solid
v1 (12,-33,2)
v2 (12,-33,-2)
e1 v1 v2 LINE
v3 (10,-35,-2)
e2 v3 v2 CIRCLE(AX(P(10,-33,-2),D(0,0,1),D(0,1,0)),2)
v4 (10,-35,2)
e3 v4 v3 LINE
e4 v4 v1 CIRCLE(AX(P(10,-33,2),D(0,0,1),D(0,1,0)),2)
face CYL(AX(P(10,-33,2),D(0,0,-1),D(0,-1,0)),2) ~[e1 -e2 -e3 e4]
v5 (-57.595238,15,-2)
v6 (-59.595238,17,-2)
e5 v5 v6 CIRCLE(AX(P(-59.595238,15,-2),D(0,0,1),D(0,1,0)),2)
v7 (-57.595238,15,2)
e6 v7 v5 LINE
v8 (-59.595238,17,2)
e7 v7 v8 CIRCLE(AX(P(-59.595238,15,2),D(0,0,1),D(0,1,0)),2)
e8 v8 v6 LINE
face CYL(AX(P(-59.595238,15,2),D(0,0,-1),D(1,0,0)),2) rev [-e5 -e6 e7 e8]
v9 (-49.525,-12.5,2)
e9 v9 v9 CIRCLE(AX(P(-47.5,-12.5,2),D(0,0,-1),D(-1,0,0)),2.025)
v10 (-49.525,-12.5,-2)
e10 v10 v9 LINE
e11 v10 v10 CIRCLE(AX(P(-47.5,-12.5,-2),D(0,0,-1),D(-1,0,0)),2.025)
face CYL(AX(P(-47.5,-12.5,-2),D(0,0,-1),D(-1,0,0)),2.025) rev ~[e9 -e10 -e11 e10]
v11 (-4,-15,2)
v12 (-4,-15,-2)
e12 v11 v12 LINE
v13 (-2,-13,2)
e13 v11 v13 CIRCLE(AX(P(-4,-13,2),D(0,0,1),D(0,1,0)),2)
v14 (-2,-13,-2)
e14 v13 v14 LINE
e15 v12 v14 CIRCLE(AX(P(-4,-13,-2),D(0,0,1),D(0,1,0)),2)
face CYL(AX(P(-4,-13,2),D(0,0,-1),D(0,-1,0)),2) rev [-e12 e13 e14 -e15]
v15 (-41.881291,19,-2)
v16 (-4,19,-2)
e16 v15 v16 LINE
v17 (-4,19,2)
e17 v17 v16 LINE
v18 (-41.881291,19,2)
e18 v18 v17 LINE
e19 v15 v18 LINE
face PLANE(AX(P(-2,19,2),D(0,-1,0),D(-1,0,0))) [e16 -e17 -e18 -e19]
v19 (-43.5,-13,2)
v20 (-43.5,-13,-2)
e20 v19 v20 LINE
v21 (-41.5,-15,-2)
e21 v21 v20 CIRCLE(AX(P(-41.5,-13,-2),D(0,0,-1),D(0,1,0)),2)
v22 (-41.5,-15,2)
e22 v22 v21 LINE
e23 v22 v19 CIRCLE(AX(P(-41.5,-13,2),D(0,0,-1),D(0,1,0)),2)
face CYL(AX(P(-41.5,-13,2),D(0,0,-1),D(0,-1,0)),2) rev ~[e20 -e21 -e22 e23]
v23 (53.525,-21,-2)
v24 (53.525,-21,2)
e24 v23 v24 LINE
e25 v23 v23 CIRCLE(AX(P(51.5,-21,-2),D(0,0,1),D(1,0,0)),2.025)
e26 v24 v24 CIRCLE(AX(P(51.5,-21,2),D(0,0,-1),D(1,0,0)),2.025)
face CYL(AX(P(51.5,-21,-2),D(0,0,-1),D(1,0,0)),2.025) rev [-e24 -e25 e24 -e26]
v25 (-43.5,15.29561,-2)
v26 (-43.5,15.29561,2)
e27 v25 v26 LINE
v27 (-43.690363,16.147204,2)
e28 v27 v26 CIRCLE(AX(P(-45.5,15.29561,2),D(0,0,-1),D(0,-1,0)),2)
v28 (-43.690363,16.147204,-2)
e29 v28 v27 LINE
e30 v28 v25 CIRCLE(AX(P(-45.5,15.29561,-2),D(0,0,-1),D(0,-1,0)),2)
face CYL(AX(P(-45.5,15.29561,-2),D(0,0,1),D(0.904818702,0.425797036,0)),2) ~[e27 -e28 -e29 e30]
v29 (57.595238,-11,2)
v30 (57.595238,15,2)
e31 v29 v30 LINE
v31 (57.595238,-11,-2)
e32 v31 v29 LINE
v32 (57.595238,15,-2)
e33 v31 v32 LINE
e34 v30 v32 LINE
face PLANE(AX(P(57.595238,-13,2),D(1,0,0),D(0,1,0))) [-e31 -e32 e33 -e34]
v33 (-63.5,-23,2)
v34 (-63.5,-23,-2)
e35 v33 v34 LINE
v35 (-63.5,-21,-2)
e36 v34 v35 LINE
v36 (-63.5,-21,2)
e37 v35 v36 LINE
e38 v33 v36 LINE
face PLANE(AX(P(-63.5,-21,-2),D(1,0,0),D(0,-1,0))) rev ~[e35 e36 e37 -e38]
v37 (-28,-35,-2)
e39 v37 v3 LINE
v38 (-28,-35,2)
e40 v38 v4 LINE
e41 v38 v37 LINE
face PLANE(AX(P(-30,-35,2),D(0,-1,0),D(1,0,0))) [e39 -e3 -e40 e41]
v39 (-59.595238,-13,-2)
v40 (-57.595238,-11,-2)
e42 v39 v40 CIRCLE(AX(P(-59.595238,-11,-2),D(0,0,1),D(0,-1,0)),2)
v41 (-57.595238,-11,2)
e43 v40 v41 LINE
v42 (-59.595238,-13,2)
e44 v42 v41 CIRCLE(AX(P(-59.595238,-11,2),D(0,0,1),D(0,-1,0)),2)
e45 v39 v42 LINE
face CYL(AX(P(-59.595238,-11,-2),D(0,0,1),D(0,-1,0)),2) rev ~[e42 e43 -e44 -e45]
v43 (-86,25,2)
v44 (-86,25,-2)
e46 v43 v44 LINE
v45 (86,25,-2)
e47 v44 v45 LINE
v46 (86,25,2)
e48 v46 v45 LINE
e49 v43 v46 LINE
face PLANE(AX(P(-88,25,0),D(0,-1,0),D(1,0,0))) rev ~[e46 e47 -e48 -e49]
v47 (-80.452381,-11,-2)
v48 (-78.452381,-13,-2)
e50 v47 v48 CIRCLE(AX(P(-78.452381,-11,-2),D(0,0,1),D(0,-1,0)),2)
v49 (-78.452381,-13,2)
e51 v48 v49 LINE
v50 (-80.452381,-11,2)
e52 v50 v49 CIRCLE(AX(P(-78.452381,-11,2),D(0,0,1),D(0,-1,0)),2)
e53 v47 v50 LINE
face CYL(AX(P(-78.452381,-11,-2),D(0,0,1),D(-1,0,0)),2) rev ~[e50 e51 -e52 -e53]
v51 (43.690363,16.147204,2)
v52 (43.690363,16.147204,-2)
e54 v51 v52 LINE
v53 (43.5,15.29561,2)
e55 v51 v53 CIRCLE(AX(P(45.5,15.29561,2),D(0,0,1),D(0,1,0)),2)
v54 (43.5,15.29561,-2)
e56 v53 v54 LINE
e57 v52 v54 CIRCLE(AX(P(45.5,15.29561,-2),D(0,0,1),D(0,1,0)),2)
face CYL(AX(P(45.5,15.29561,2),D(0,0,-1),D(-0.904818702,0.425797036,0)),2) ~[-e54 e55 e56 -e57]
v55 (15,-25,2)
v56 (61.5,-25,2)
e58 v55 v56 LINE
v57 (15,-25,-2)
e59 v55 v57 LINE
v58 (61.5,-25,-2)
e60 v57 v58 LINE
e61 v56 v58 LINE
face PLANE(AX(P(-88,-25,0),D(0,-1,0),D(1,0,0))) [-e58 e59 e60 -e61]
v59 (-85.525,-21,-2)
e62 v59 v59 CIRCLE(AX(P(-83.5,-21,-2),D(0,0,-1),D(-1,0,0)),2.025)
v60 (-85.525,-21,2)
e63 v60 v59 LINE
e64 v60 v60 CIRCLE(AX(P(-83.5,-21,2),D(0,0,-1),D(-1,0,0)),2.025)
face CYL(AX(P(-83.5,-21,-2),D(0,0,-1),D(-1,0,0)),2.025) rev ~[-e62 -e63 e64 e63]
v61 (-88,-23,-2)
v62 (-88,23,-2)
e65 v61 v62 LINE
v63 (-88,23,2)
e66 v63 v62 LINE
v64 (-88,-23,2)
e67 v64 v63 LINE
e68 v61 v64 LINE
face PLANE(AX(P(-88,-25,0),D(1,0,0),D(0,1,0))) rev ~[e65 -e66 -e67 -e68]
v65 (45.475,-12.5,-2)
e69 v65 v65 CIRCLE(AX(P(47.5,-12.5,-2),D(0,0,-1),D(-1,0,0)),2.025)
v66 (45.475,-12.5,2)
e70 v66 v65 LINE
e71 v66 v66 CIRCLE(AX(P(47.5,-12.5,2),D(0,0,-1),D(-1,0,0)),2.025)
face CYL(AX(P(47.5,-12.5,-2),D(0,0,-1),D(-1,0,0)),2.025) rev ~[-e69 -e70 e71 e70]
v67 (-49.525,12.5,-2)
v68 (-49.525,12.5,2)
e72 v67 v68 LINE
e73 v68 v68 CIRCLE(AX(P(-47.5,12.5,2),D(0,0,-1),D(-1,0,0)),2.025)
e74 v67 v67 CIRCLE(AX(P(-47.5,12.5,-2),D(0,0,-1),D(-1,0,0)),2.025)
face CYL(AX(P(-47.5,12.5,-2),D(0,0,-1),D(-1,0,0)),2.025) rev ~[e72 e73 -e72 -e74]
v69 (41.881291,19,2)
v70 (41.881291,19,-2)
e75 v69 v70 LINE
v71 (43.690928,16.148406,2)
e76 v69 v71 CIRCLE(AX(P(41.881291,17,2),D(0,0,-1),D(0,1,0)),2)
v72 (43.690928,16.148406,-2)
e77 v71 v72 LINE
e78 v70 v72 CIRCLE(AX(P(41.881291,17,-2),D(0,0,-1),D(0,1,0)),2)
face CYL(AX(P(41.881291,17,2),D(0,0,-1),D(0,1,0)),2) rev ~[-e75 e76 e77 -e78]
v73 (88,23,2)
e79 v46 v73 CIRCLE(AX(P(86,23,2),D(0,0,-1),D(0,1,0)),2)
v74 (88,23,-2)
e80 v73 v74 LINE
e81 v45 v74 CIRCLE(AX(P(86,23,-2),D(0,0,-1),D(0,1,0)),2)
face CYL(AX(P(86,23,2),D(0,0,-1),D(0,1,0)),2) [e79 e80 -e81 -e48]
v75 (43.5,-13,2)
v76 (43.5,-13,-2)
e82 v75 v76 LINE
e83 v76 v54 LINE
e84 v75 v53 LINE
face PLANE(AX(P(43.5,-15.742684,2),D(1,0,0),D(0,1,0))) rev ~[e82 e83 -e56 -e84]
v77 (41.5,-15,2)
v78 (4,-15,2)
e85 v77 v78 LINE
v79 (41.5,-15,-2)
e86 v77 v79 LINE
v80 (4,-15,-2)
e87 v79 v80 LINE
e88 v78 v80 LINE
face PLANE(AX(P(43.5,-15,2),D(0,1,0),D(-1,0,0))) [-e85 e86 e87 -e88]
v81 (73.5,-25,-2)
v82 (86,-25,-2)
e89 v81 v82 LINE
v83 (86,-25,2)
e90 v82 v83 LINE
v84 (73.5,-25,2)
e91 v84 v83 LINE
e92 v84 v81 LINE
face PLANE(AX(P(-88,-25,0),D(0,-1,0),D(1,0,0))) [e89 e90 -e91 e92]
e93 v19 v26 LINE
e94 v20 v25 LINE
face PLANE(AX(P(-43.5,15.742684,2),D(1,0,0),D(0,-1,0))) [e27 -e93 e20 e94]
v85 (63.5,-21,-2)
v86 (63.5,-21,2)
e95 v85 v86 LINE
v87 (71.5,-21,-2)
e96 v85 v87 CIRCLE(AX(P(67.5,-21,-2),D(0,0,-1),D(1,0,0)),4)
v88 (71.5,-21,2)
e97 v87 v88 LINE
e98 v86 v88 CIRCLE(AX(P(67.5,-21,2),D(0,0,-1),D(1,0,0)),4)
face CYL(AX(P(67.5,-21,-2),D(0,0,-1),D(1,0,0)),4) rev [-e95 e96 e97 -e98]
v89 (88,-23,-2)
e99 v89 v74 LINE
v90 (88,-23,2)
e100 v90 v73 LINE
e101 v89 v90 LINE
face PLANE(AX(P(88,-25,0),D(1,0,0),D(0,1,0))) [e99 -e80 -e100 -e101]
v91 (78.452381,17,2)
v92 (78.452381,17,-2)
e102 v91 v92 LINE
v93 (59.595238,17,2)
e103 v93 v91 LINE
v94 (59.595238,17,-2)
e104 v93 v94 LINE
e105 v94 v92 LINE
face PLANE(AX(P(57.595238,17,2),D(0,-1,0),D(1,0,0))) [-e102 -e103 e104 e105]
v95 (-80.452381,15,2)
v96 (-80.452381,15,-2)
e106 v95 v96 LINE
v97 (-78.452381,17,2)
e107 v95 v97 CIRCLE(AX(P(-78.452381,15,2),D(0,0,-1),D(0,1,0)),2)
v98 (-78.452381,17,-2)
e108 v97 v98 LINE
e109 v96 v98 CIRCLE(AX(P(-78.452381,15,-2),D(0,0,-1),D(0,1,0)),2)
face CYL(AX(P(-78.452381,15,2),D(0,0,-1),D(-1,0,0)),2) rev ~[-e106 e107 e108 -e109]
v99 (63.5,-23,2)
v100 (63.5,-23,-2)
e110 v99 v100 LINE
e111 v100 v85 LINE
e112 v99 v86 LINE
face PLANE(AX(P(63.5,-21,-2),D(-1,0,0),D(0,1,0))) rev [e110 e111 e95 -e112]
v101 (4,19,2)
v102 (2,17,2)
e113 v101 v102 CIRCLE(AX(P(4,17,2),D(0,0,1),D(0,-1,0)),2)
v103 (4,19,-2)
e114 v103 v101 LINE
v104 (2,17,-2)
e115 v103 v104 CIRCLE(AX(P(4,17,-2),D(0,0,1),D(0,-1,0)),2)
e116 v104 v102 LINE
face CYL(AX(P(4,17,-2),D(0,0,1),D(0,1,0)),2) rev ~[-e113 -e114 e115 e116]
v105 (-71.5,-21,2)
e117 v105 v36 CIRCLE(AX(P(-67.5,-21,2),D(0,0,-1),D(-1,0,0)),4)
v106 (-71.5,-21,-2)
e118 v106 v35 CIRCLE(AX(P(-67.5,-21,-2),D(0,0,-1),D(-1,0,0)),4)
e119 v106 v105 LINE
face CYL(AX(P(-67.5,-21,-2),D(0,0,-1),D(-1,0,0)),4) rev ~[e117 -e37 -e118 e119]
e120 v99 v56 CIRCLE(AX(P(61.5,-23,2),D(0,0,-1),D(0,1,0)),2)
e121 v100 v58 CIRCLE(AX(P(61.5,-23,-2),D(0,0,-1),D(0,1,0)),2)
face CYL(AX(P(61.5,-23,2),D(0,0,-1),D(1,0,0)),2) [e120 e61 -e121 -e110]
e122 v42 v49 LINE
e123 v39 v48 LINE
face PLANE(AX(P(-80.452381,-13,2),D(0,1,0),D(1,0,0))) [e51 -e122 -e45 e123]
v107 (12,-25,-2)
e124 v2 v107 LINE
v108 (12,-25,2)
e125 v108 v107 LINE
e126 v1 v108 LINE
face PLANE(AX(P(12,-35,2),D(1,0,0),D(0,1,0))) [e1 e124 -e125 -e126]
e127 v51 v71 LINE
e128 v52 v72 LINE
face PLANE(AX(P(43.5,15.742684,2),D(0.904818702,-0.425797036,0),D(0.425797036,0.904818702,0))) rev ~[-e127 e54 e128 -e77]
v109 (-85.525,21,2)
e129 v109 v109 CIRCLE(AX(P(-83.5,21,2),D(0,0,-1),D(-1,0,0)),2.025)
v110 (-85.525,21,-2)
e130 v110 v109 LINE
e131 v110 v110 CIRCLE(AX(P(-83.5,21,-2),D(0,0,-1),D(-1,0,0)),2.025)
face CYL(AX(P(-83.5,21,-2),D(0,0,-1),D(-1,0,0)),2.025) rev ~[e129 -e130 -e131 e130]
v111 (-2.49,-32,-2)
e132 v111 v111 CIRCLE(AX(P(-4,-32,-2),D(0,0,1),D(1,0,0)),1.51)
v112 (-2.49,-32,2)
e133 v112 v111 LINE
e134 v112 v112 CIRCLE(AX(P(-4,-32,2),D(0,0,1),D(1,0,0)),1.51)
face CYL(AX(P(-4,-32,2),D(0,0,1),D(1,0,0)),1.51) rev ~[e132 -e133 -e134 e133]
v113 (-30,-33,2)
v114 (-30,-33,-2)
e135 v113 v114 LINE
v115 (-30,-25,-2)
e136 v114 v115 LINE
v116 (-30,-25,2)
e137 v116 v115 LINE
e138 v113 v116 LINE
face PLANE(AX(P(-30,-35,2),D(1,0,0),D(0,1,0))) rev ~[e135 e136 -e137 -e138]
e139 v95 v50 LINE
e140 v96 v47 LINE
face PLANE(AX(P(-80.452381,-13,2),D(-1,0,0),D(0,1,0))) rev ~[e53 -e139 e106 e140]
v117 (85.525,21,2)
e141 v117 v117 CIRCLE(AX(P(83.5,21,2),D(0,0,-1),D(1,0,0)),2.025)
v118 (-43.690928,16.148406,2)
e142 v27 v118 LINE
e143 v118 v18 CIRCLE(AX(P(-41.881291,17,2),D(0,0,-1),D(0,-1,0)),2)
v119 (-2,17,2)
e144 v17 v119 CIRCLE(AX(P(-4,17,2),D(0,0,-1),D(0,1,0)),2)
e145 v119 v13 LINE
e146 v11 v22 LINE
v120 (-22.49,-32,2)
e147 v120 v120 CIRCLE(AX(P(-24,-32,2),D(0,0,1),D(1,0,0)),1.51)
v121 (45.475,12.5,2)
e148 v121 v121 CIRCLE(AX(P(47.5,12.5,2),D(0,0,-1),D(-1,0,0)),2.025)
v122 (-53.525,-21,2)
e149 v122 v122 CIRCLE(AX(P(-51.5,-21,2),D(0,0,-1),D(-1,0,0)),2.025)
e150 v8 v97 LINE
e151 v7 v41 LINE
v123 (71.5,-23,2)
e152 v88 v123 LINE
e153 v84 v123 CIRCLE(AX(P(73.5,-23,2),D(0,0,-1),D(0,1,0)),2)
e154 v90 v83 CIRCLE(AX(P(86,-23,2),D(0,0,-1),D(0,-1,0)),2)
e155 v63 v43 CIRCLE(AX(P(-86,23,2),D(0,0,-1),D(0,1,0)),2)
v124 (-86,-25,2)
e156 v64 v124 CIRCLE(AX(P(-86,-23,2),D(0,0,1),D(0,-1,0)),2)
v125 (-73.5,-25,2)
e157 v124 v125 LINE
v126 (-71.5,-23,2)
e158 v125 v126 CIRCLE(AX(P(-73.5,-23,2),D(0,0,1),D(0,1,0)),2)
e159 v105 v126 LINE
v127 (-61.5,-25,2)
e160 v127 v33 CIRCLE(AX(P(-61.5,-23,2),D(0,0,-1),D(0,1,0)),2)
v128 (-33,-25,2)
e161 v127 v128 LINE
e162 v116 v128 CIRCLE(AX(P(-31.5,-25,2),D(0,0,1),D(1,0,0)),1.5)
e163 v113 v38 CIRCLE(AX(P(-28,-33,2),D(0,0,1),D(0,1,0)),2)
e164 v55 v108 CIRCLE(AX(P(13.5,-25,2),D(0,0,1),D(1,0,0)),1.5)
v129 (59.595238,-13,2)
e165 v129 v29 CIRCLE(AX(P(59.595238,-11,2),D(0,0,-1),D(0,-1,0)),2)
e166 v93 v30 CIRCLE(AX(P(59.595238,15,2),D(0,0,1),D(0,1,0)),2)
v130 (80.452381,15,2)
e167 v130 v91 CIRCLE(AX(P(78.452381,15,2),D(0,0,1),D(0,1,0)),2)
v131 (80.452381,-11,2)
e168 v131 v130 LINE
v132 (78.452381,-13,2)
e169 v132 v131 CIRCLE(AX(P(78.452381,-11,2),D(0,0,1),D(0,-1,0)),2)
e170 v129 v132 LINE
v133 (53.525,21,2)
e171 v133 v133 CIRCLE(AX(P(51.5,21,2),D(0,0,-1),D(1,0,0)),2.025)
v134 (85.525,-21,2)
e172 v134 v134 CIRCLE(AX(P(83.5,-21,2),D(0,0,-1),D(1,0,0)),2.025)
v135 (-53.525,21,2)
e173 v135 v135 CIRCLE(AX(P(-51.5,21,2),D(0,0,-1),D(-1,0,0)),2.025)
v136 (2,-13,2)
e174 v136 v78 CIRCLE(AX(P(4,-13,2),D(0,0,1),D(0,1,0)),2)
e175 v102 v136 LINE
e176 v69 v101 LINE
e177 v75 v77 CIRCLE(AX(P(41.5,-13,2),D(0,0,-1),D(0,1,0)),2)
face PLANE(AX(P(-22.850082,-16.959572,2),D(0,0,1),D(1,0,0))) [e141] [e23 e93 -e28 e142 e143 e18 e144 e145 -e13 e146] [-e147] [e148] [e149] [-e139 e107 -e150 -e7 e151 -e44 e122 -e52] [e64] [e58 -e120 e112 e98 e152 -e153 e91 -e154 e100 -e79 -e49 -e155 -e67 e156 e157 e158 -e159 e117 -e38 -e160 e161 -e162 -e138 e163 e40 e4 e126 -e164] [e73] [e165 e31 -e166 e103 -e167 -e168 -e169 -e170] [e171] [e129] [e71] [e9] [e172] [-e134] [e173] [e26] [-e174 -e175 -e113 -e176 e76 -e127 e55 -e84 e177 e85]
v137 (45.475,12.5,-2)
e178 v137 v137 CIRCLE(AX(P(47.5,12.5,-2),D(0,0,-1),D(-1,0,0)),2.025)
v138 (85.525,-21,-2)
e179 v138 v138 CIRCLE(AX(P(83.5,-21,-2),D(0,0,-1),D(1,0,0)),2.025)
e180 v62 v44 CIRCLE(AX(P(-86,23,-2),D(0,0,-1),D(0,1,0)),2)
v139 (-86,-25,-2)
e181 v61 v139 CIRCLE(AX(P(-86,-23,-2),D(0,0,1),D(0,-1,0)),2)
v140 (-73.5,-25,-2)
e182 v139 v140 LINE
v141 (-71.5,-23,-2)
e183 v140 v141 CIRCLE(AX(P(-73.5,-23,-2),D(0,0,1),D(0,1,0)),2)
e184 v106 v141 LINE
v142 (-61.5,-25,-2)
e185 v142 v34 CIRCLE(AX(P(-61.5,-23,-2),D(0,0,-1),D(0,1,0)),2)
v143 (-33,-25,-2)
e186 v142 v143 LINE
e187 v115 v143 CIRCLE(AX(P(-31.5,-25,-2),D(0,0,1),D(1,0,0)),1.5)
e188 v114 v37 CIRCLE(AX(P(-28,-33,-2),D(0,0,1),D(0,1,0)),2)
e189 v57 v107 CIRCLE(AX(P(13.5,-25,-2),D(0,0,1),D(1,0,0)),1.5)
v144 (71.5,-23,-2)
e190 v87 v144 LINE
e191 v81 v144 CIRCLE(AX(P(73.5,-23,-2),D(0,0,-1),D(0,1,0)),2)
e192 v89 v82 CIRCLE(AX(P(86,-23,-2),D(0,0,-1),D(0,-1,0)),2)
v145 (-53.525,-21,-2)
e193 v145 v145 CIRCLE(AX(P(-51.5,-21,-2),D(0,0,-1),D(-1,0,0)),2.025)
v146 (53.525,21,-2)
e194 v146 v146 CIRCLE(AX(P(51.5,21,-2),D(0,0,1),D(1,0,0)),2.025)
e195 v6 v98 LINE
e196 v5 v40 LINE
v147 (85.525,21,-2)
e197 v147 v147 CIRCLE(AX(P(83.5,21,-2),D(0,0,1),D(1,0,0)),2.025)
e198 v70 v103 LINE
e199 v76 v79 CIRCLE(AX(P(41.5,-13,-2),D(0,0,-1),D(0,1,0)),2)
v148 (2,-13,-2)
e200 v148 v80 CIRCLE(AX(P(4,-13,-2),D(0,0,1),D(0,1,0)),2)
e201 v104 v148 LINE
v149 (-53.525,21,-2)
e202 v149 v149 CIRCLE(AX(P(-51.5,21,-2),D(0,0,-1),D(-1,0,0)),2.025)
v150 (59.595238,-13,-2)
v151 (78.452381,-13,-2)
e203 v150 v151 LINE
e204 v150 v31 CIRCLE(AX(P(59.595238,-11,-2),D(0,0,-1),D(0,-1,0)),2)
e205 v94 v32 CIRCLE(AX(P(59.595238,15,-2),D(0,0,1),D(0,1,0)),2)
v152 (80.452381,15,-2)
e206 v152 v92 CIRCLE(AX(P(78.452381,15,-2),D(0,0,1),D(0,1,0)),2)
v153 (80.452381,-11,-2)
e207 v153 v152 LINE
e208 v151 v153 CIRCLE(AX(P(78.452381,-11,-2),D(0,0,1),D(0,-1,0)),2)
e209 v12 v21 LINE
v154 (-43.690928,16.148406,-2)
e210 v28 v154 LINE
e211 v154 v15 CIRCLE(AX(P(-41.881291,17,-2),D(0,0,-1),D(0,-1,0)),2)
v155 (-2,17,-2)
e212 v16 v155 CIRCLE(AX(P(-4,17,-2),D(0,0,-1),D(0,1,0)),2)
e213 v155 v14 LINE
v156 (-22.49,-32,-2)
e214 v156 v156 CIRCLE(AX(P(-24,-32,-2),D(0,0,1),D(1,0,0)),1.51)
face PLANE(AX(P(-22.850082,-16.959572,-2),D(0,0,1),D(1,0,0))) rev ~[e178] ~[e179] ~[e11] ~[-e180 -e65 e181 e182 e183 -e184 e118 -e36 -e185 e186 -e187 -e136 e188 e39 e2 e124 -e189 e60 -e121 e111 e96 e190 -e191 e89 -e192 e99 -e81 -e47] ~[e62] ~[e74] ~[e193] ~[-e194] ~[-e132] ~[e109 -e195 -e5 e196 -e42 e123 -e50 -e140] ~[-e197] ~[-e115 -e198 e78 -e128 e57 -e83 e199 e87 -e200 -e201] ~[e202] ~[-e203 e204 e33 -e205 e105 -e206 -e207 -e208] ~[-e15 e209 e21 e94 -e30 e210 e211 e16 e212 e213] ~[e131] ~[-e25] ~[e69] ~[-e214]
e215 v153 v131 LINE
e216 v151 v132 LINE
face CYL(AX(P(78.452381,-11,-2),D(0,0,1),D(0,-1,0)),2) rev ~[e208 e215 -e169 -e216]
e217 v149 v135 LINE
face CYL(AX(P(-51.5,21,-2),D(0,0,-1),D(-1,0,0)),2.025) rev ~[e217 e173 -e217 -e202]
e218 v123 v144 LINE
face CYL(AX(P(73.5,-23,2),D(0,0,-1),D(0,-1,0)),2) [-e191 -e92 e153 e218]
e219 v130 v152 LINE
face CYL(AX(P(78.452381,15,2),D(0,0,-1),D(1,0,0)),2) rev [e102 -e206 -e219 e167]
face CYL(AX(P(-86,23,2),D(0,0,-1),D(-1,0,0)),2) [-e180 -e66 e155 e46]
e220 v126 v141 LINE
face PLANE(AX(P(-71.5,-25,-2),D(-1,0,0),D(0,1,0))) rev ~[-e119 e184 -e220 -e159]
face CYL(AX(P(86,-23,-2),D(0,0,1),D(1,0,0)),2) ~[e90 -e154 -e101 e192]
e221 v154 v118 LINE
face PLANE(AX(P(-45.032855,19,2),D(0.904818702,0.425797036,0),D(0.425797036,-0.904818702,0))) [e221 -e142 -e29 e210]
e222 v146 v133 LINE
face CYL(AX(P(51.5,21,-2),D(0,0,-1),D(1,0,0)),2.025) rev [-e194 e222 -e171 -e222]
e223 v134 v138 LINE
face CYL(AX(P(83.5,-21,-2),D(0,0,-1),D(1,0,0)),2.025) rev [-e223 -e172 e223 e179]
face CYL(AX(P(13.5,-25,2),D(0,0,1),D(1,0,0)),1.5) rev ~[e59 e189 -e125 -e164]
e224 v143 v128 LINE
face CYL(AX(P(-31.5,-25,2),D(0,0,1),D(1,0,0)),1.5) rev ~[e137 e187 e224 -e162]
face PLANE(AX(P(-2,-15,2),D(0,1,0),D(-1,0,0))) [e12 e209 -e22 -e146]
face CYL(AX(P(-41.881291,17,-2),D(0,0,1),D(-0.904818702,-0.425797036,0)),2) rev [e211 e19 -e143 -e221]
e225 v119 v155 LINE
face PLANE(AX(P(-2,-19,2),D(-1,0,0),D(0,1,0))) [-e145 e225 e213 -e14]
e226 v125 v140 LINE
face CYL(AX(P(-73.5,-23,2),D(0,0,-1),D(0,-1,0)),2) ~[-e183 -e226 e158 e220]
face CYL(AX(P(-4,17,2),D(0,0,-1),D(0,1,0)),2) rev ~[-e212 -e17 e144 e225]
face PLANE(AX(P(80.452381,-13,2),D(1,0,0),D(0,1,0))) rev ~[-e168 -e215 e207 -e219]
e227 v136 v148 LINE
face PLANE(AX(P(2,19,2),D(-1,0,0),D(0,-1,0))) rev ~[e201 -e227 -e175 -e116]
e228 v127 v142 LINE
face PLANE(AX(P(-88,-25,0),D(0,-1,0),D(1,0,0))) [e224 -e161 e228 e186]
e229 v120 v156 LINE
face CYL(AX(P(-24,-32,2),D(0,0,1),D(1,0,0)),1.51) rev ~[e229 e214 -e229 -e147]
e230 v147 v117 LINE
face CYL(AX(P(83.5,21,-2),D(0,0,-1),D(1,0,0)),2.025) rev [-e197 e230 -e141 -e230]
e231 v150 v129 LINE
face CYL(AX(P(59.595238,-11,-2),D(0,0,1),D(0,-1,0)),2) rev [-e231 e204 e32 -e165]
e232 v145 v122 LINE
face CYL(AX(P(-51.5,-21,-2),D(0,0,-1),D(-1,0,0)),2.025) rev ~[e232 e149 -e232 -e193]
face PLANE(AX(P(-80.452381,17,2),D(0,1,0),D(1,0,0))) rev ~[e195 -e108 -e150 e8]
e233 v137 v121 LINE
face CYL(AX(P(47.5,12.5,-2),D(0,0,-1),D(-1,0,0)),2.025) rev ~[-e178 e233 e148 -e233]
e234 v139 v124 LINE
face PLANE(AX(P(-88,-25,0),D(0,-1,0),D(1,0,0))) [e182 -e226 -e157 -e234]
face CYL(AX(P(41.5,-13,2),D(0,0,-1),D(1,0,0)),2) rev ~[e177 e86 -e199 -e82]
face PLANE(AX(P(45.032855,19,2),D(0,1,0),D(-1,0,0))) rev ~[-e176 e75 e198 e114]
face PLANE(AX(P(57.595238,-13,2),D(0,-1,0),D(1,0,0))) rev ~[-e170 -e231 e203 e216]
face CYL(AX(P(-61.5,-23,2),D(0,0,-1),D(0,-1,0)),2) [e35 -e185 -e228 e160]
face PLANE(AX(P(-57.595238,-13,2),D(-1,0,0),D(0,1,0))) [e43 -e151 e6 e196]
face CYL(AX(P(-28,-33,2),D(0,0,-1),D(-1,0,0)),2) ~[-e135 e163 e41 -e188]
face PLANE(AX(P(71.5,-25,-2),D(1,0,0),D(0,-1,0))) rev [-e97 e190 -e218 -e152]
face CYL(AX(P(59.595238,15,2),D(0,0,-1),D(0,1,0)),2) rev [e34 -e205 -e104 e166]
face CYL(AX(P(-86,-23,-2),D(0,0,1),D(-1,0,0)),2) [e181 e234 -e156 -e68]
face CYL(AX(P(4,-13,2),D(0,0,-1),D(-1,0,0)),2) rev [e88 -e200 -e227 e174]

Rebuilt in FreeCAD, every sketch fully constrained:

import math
import FreeCAD as App
import Part
import Sketcher


def edges_at(feature, points):
    """Names of the edges that pass closest to the given points."""
    edges = feature.Shape.Edges
    near = lambda p: min(range(len(edges)), key=lambda i: edges[i].distToShape(Part.Vertex(*p))[0])
    return sorted({f"Edge{near(p) + 1}" for p in points})

doc = App.newDocument("Part")
params = doc.addObject("Spreadsheet::Sheet", "Params")
for row, (alias, value) in enumerate([
    ("sketch1_width", "176 mm"),
    ("sketch1_height", "50 mm"),
    ("pad1_length", "4 mm"),
    ("sketch2_diameter", "4.05 mm"),
    ("pocket1_length", "44 mm"),
    ("sketch3_radius", "4 mm"),
    ("sketch3_height", "4 mm"),
    ("pocket2_length", "34 mm"),
    ("fillet_radius", "2 mm"),
    ("sketch4_diameter", "4.05 mm"),
    ("pocket3_length", "10 mm"),
    ("sketch5_height", "38 mm"),
    ("pocket4_length", "31 mm"),
    ("sketch6_height", "30 mm"),
    ("pocket5_length", "31 mm"),
    ("fillet2_radius", "2 mm"),
    ("sketch7_width", "42 mm"),
    ("sketch7_height", "10 mm"),
    ("pad2_length", "4 mm"),
    ("sketch8_diameter", "3.02 mm"),
    ("pocket6_length", "4 mm"),
    ("sketch9_diameter", "3 mm"),
    ("pocket7_length", "10 mm"),
    ("sketch10_radius", "2 mm"),
    ("sketch10_height", "2 mm"),
    ("sketch10_width", "41.5 mm"),
    ("pad3_length", "4 mm"),
    ("fillet3_radius", "2 mm"),
    ("fillet4_radius", "2 mm"),
], start=1):
    params.set(f"A{row}", alias)
    params.set(f"B{row}", "=" + value)
    params.setAlias(f"B{row}", alias)

body = doc.addObject("PartDesign::Body", "Body")

# Sketch on XY plane
sketch1 = body.newObject("Sketcher::SketchObject", "Sketch")
sketch1.AttachmentSupport = (doc.getObject("XY_Plane"), [""])
sketch1.MapMode = "FlatFace"
sketch1.addGeometry([
    Part.LineSegment(App.Vector(-88, 25, 0), App.Vector(-88, -25, 0)),
    Part.LineSegment(App.Vector(-88, -25, 0), App.Vector(88, -25, 0)),
    Part.LineSegment(App.Vector(88, -25, 0), App.Vector(88, 25, 0)),
    Part.LineSegment(App.Vector(88, 25, 0), App.Vector(-88, 25, 0)),
], False)
sketch1.addConstraint([
    Sketcher.Constraint("Coincident", 0, 2, 1, 1),
    Sketcher.Constraint("Coincident", 1, 2, 2, 1),
    Sketcher.Constraint("Coincident", 2, 2, 3, 1),
    Sketcher.Constraint("Coincident", 3, 2, 0, 1),
    Sketcher.Constraint("Vertical", 0),
    Sketcher.Constraint("Horizontal", 1),
    Sketcher.Constraint("Vertical", 2),
    Sketcher.Constraint("Horizontal", 3),
    Sketcher.Constraint("Symmetric", 0, 2, 2, 2, -1, 1),
    Sketcher.Constraint("DistanceX", 1, 1, 1, 2, 176.0),
    Sketcher.Constraint("DistanceY", 0, 2, 0, 1, 50.0),
])
sketch1.setExpression("Constraints[9]", "Params.sketch1_width")
sketch1.setExpression("Constraints[10]", "Params.sketch1_height")
pad1 = body.newObject("PartDesign::Pad", "Pad")
pad1.Profile = sketch1
pad1.setExpression("Length", "Params.pad1_length")
pad1.Midplane = True

# Sketch on XY plane
sketch2 = body.newObject("Sketcher::SketchObject", "Sketch001")
sketch2.AttachmentSupport = (doc.getObject("XY_Plane"), [""])
sketch2.MapMode = "FlatFace"
sketch2.AttachmentOffset = App.Placement(App.Vector(0, 0, -2), App.Rotation())
sketch2.addGeometry([
    Part.Circle(App.Vector(-51.5, 21, 0), App.Vector(0, 0, 1), 2.025),
    Part.Circle(App.Vector(-51.5, -21, 0), App.Vector(0, 0, 1), 2.025),
    Part.Circle(App.Vector(-83.5, 21, 0), App.Vector(0, 0, 1), 2.025),
    Part.Circle(App.Vector(-83.5, -21, 0), App.Vector(0, 0, 1), 2.025),
], False)
sketch2.addConstraint([
    Sketcher.Constraint("Equal", 0, 1),
    Sketcher.Constraint("Equal", 1, 2),
    Sketcher.Constraint("Equal", 2, 3),
    Sketcher.Constraint("Symmetric", 0, 3, 1, 3, -1),
    Sketcher.Constraint("Symmetric", 2, 3, 3, 3, -1),
    Sketcher.Constraint("Horizontal", 0, 3, 2, 3),
    Sketcher.Constraint("Diameter", 0, 4.05),
    Sketcher.Constraint("DistanceY", -1, 1, 0, 3, 21.0),
    Sketcher.Constraint("DistanceX", 2, 3, 0, 3, 32.0),
    Sketcher.Constraint("DistanceX", 0, 3, -1, 1, 51.5),
])
sketch2.setExpression("Constraints[6]", "Params.sketch2_diameter")
pocket1 = body.newObject("PartDesign::Pocket", "Pocket")
pocket1.Profile = sketch2
pocket1.setExpression("Length", "Params.pocket1_length")
pocket1.Midplane = True
doc.recompute()

mirrored = body.newObject("PartDesign::Mirrored", "Mirrored")
mirrored.Originals = [pocket1]
mirrored.MirrorPlane = (doc.getObject("YZ_Plane"), [""])
body.Tip = mirrored

# Sketch on XY plane
sketch3 = body.newObject("Sketcher::SketchObject", "Sketch002")
sketch3.AttachmentSupport = (doc.getObject("XY_Plane"), [""])
sketch3.MapMode = "FlatFace"
sketch3.AttachmentOffset = App.Placement(App.Vector(0, 0, -2), App.Rotation())
sketch3.addGeometry([
    Part.LineSegment(App.Vector(-63.5, -21, 0), App.Vector(-63.5, -25, 0)),
    Part.LineSegment(App.Vector(-63.5, -25, 0), App.Vector(-71.5, -25, 0)),
    Part.LineSegment(App.Vector(-71.5, -25, 0), App.Vector(-71.5, -21, 0)),
    Part.ArcOfCircle(Part.Circle(App.Vector(-67.5, -21, 0), App.Vector(0, 0, 1), 4), math.radians(0), math.radians(180)),
], False)
sketch3.addConstraint([
    Sketcher.Constraint("Coincident", 0, 2, 1, 1),
    Sketcher.Constraint("Coincident", 1, 2, 2, 1),
    Sketcher.Constraint("Tangent", 2, 2, 3, 2),
    Sketcher.Constraint("Tangent", 3, 1, 0, 1),
    Sketcher.Constraint("Vertical", 0),
    Sketcher.Constraint("Horizontal", 1),
    Sketcher.Constraint("Vertical", 2),
    Sketcher.Constraint("Radius", 3, 4.0),
    Sketcher.Constraint("DistanceY", 0, 2, 0, 1, 4.0),
    Sketcher.Constraint("DistanceY", 3, 3, -1, 1, 21.0),
    Sketcher.Constraint("DistanceX", 3, 3, -1, 1, 67.5),
])
sketch3.setExpression("Constraints[7]", "Params.sketch3_radius")
sketch3.setExpression("Constraints[8]", "Params.sketch3_height")
pocket2 = body.newObject("PartDesign::Pocket", "Pocket001")
pocket2.Profile = sketch3
pocket2.setExpression("Length", "Params.pocket2_length")
pocket2.Midplane = True
doc.recompute()

mirrored2 = body.newObject("PartDesign::Mirrored", "Mirrored001")
mirrored2.Originals = [pocket2]
mirrored2.MirrorPlane = (doc.getObject("YZ_Plane"), [""])
body.Tip = mirrored2
doc.recompute()

fillet = body.newObject("PartDesign::Fillet", "Fillet")
fillet.Base = (mirrored2, edges_at(mirrored2, [
    (-71.5, -25, 0),
    (-63.5, -25, 0),
    (88, -25, 0),
    (-88, -25, 0),
    (-88, 25, 0),
    (88, 25, 0),
    (63.5, -25, 0),
    (71.5, -25, 0),
]))
fillet.setExpression("Radius", "Params.fillet_radius")

# Sketch on XY plane
sketch4 = body.newObject("Sketcher::SketchObject", "Sketch003")
sketch4.AttachmentSupport = (doc.getObject("XY_Plane"), [""])
sketch4.MapMode = "FlatFace"
sketch4.AttachmentOffset = App.Placement(App.Vector(0, 0, -2), App.Rotation())
sketch4.addGeometry([
    Part.Circle(App.Vector(-47.5, -12.5, 0), App.Vector(0, 0, 1), 2.025),
    Part.Circle(App.Vector(-47.5, 12.5, 0), App.Vector(0, 0, 1), 2.025),
    Part.Circle(App.Vector(47.5, 12.5, 0), App.Vector(0, 0, 1), 2.025),
    Part.Circle(App.Vector(47.5, -12.5, 0), App.Vector(0, 0, 1), 2.025),
], False)
sketch4.addConstraint([
    Sketcher.Constraint("Equal", 0, 1),
    Sketcher.Constraint("Equal", 1, 2),
    Sketcher.Constraint("Equal", 2, 3),
    Sketcher.Constraint("Symmetric", 0, 3, 2, 3, -1, 1),
    Sketcher.Constraint("Symmetric", 1, 3, 3, 3, -1, 1),
    Sketcher.Constraint("Symmetric", 1, 3, 2, 3, -2),
    Sketcher.Constraint("Diameter", 0, 4.05),
    Sketcher.Constraint("DistanceY", 0, 3, 1, 3, 25.0),
    Sketcher.Constraint("DistanceX", 1, 3, 2, 3, 95.0),
])
sketch4.setExpression("Constraints[6]", "Params.sketch4_diameter")
pocket3 = body.newObject("PartDesign::Pocket", "Pocket002")
pocket3.Profile = sketch4
pocket3.setExpression("Length", "Params.pocket3_length")
pocket3.Midplane = True

# Sketch on XY plane
sketch5 = body.newObject("Sketcher::SketchObject", "Sketch004")
sketch5.AttachmentSupport = (doc.getObject("XY_Plane"), [""])
sketch5.MapMode = "FlatFace"
sketch5.AttachmentOffset = App.Placement(App.Vector(0, 0, 2), App.Rotation())
sketch5.addGeometry([
    Part.LineSegment(App.Vector(-2, 19, 0), App.Vector(-45.032855, 19, 0)),  # 0
    Part.LineSegment(App.Vector(-45.032855, 19, 0), App.Vector(-43.5, 15.742684, 0)),  # 1
    Part.LineSegment(App.Vector(-43.5, 15.742684, 0), App.Vector(-43.5, -15.742684, 0)),  # 2
    Part.LineSegment(App.Vector(-43.5, -15.742684, 0), App.Vector(-45.032855, -19, 0)),  # 3
    Part.LineSegment(App.Vector(-45.032855, -19, 0), App.Vector(-2, -19, 0)),  # 4
    Part.LineSegment(App.Vector(-2, -19, 0), App.Vector(-2, 19, 0)),  # 5
    Part.LineSegment(App.Vector(45.032855, 19, 0), App.Vector(2, 19, 0)),  # 6
    Part.LineSegment(App.Vector(2, 19, 0), App.Vector(2, -19, 0)),  # 7
    Part.LineSegment(App.Vector(2, -19, 0), App.Vector(45.032855, -19, 0)),  # 8
    Part.LineSegment(App.Vector(45.032855, -19, 0), App.Vector(43.5, -15.742684, 0)),  # 9
    Part.LineSegment(App.Vector(43.5, -15.742684, 0), App.Vector(43.5, 15.742684, 0)),  # 10
    Part.LineSegment(App.Vector(43.5, 15.742684, 0), App.Vector(45.032855, 19, 0)),  # 11
], False)
sketch5.addConstraint([
    Sketcher.Constraint("Coincident", 0, 2, 1, 1),
    Sketcher.Constraint("Coincident", 1, 2, 2, 1),
    Sketcher.Constraint("Coincident", 2, 2, 3, 1),
    Sketcher.Constraint("Coincident", 3, 2, 4, 1),
    Sketcher.Constraint("Coincident", 4, 2, 5, 1),
    Sketcher.Constraint("Coincident", 5, 2, 0, 1),
    Sketcher.Constraint("Coincident", 6, 2, 7, 1),
    Sketcher.Constraint("Coincident", 7, 2, 8, 1),
    Sketcher.Constraint("Coincident", 8, 2, 9, 1),
    Sketcher.Constraint("Coincident", 9, 2, 10, 1),
    Sketcher.Constraint("Coincident", 10, 2, 11, 1),
    Sketcher.Constraint("Coincident", 11, 2, 6, 1),
    Sketcher.Constraint("Horizontal", 0),
    Sketcher.Constraint("Vertical", 2),
    Sketcher.Constraint("Horizontal", 4),
    Sketcher.Constraint("Vertical", 5),
    Sketcher.Constraint("Horizontal", 6),
    Sketcher.Constraint("Vertical", 7),
    Sketcher.Constraint("Horizontal", 8),
    Sketcher.Constraint("Vertical", 10),
    Sketcher.Constraint("Symmetric", 4, 2, 6, 2, -1, 1),
    Sketcher.Constraint("Symmetric", 0, 2, 8, 2, -1, 1),
    Sketcher.Constraint("Symmetric", 1, 2, 9, 2, -1, 1),
    Sketcher.Constraint("Symmetric", 3, 2, 8, 2, -2),
    Sketcher.Constraint("Parallel", 3, 11),
    Sketcher.Constraint("Horizontal", 2, 2, 9, 2),
    Sketcher.Constraint("Horizontal", 1, 2, 10, 2),
    Sketcher.Constraint("DistanceY", 5, 1, 5, 2, 38.0),
    Sketcher.Constraint("DistanceX", 4, 2, -1, 1, 2.0),
    Sketcher.Constraint("DistanceX", 1, 2, -1, 1, 43.5),
    Sketcher.Constraint("DistanceX", 0, 2, 0, 1, 43.032855),
    Sketcher.Constraint("DistanceY", 2, 2, 2, 1, 31.485368),
])
sketch5.setExpression("Constraints[27]", "Params.sketch5_height")
pocket4 = body.newObject("PartDesign::Pocket", "Pocket003")
pocket4.Profile = sketch5
pocket4.setExpression("Length", "Params.pocket4_length")
pocket4.Midplane = True

# Sketch on XY plane
sketch6 = body.newObject("Sketcher::SketchObject", "Sketch005")
sketch6.AttachmentSupport = (doc.getObject("XY_Plane"), [""])
sketch6.MapMode = "FlatFace"
sketch6.AttachmentOffset = App.Placement(App.Vector(0, 0, 2), App.Rotation())
sketch6.addGeometry([
    Part.LineSegment(App.Vector(-80.452381, 17, 0), App.Vector(-80.452381, -13, 0)),  # 0
    Part.LineSegment(App.Vector(-80.452381, -13, 0), App.Vector(-57.595238, -13, 0)),  # 1
    Part.LineSegment(App.Vector(-57.595238, -13, 0), App.Vector(-57.595238, 17, 0)),  # 2
    Part.LineSegment(App.Vector(-57.595238, 17, 0), App.Vector(-80.452381, 17, 0)),  # 3
    Part.LineSegment(App.Vector(57.595238, 17, 0), App.Vector(57.595238, -13, 0)),  # 4
    Part.LineSegment(App.Vector(57.595238, -13, 0), App.Vector(80.452381, -13, 0)),  # 5
    Part.LineSegment(App.Vector(80.452381, -13, 0), App.Vector(80.452381, 17, 0)),  # 6
    Part.LineSegment(App.Vector(80.452381, 17, 0), App.Vector(57.595238, 17, 0)),  # 7
], False)
sketch6.addConstraint([
    Sketcher.Constraint("Coincident", 0, 2, 1, 1),
    Sketcher.Constraint("Coincident", 1, 2, 2, 1),
    Sketcher.Constraint("Coincident", 2, 2, 3, 1),
    Sketcher.Constraint("Coincident", 3, 2, 0, 1),
    Sketcher.Constraint("Coincident", 4, 2, 5, 1),
    Sketcher.Constraint("Coincident", 5, 2, 6, 1),
    Sketcher.Constraint("Coincident", 6, 2, 7, 1),
    Sketcher.Constraint("Coincident", 7, 2, 4, 1),
    Sketcher.Constraint("Vertical", 0),
    Sketcher.Constraint("Horizontal", 1),
    Sketcher.Constraint("Vertical", 2),
    Sketcher.Constraint("Horizontal", 3),
    Sketcher.Constraint("Vertical", 4),
    Sketcher.Constraint("Horizontal", 5),
    Sketcher.Constraint("Vertical", 6),
    Sketcher.Constraint("Horizontal", 7),
    Sketcher.Constraint("Symmetric", 1, 2, 4, 2, -2),
    Sketcher.Constraint("Symmetric", 3, 2, 6, 2, -2),
    Sketcher.Constraint("DistanceY", 0, 2, 0, 1, 30.0),
    Sketcher.Constraint("DistanceY", 0, 2, -1, 1, 13.0),
    Sketcher.Constraint("DistanceX", 1, 1, 1, 2, 22.857143),
    Sketcher.Constraint("DistanceX", 0, 2, -1, 1, 80.452381),
])
sketch6.setExpression("Constraints[18]", "Params.sketch6_height")
pocket5 = body.newObject("PartDesign::Pocket", "Pocket004")
pocket5.Profile = sketch6
pocket5.setExpression("Length", "Params.pocket5_length")
pocket5.Midplane = True
doc.recompute()

fillet2 = body.newObject("PartDesign::Fillet", "Fillet001")
fillet2.Base = (pocket5, edges_at(pocket5, [
    (-2, 19, 0),
    (-2, -19, 0),
    (-45.033, -19, 0),
    (-43.5, -15.743, 0),
    (-43.5, 15.743, 0),
    (-45.033, 19, 0),
    (2, 19, 0),
    (45.033, 19, 0),
    (43.5, 15.743, 0),
    (43.5, -15.743, 0),
    (45.033, -19, 0),
    (2, -19, 0),
    (-80.452, -13, 0),
    (-80.452, 17, 0),
    (-57.595, 17, 0),
    (-57.595, -13, 0),
    (80.452, 17, 0),
    (80.452, -13, 0),
    (57.595, -13, 0),
    (57.595, 17, 0),
]))
fillet2.setExpression("Radius", "Params.fillet2_radius")

# Sketch on XY plane
sketch7 = body.newObject("Sketcher::SketchObject", "Sketch006")
sketch7.AttachmentSupport = (doc.getObject("XY_Plane"), [""])
sketch7.MapMode = "FlatFace"
sketch7.AttachmentOffset = App.Placement(App.Vector(0, 0, 2), App.Rotation())
sketch7.addGeometry([
    Part.LineSegment(App.Vector(-30, -25, 0), App.Vector(-30, -35, 0)),
    Part.LineSegment(App.Vector(-30, -35, 0), App.Vector(12, -35, 0)),
    Part.LineSegment(App.Vector(12, -35, 0), App.Vector(12, -25, 0)),
    Part.LineSegment(App.Vector(12, -25, 0), App.Vector(-30, -25, 0)),
], False)
sketch7.addConstraint([
    Sketcher.Constraint("Coincident", 0, 2, 1, 1),
    Sketcher.Constraint("Coincident", 1, 2, 2, 1),
    Sketcher.Constraint("Coincident", 2, 2, 3, 1),
    Sketcher.Constraint("Coincident", 3, 2, 0, 1),
    Sketcher.Constraint("Vertical", 0),
    Sketcher.Constraint("Horizontal", 1),
    Sketcher.Constraint("Vertical", 2),
    Sketcher.Constraint("Horizontal", 3),
    Sketcher.Constraint("DistanceX", 1, 1, 1, 2, 42.0),
    Sketcher.Constraint("DistanceY", 0, 2, 0, 1, 10.0),
    Sketcher.Constraint("DistanceX", 0, 2, -1, 1, 30.0),
    Sketcher.Constraint("DistanceY", 0, 2, -1, 1, 35.0),
])
sketch7.setExpression("Constraints[8]", "Params.sketch7_width")
sketch7.setExpression("Constraints[9]", "Params.sketch7_height")
pad2 = body.newObject("PartDesign::Pad", "Pad001")
pad2.Profile = sketch7
pad2.setExpression("Length", "Params.pad2_length")
pad2.Reversed = True

# Sketch on XY plane
sketch8 = body.newObject("Sketcher::SketchObject", "Sketch007")
sketch8.AttachmentSupport = (doc.getObject("XY_Plane"), [""])
sketch8.MapMode = "FlatFace"
sketch8.AttachmentOffset = App.Placement(App.Vector(0, 0, 2), App.Rotation())
sketch8.addGeometry([
    Part.Circle(App.Vector(-4, -32, 0), App.Vector(0, 0, 1), 1.51),
    Part.Circle(App.Vector(-24, -32, 0), App.Vector(0, 0, 1), 1.51),
], False)
sketch8.addConstraint([
    Sketcher.Constraint("Equal", 0, 1),
    Sketcher.Constraint("Horizontal", 0, 3, 1, 3),
    Sketcher.Constraint("Diameter", 0, 3.02),
    Sketcher.Constraint("DistanceX", 0, 3, -1, 1, 4.0),
    Sketcher.Constraint("DistanceY", 0, 3, -1, 1, 32.0),
    Sketcher.Constraint("DistanceX", 1, 3, -1, 1, 24.0),
])
sketch8.setExpression("Constraints[2]", "Params.sketch8_diameter")
pocket6 = body.newObject("PartDesign::Pocket", "Pocket005")
pocket6.Profile = sketch8
pocket6.setExpression("Length", "Params.pocket6_length")

# Sketch on XY plane
sketch9 = body.newObject("Sketcher::SketchObject", "Sketch008")
sketch9.AttachmentSupport = (doc.getObject("XY_Plane"), [""])
sketch9.MapMode = "FlatFace"
sketch9.AttachmentOffset = App.Placement(App.Vector(0, 0, 2), App.Rotation())
sketch9.addGeometry([
    Part.Circle(App.Vector(-31.5, -25, 0), App.Vector(0, 0, 1), 1.5),
    Part.Circle(App.Vector(13.5, -25, 0), App.Vector(0, 0, 1), 1.5),
], False)
sketch9.addConstraint([
    Sketcher.Constraint("Equal", 0, 1),
    Sketcher.Constraint("Horizontal", 0, 3, 1, 3),
    Sketcher.Constraint("Diameter", 0, 3.0),
    Sketcher.Constraint("DistanceY", 0, 3, -1, 1, 25.0),
    Sketcher.Constraint("DistanceX", 0, 3, 1, 3, 45.0),
    Sketcher.Constraint("DistanceX", 0, 3, -1, 1, 31.5),
])
sketch9.setExpression("Constraints[2]", "Params.sketch9_diameter")
pocket7 = body.newObject("PartDesign::Pocket", "Pocket006")
pocket7.Profile = sketch9
pocket7.setExpression("Length", "Params.pocket7_length")

# Sketch on XY plane
sketch10 = body.newObject("Sketcher::SketchObject", "Sketch009")
sketch10.AttachmentSupport = (doc.getObject("XY_Plane"), [""])
sketch10.MapMode = "FlatFace"
sketch10.AttachmentOffset = App.Placement(App.Vector(0, 0, 2), App.Rotation())
sketch10.addGeometry([
    Part.LineSegment(App.Vector(-2, -15, 0), App.Vector(-43.5, -15, 0)),  # 0
    Part.LineSegment(App.Vector(-43.5, -15, 0), App.Vector(-43.5, -15.29561, 0)),  # 1
    Part.ArcOfCircle(Part.Circle(App.Vector(-45.5, -15.29561, 0), App.Vector(0, 0, 1), 2), math.radians(-25.201124), math.radians(0)),  # 2
    Part.LineSegment(App.Vector(-43.690363, -16.147204, 0), App.Vector(-43.690928, -16.148406, 0)),  # 3
    Part.ArcOfCircle(Part.Circle(App.Vector(-41.881291, -17, 0), App.Vector(0, 0, 1), 2), math.radians(154.798876), math.radians(270)),  # 4
    Part.LineSegment(App.Vector(-41.881291, -19, 0), App.Vector(-4, -19, 0)),  # 5
    Part.ArcOfCircle(Part.Circle(App.Vector(-4, -17, 0), App.Vector(0, 0, 1), 2), math.radians(-90), math.radians(0)),  # 6
    Part.LineSegment(App.Vector(-2, -17, 0), App.Vector(-2, -15, 0)),  # 7
    Part.LineSegment(App.Vector(43.5, -15, 0), App.Vector(2, -15, 0)),  # 8
    Part.LineSegment(App.Vector(2, -15, 0), App.Vector(2, -17, 0)),  # 9
    Part.ArcOfCircle(Part.Circle(App.Vector(4, -17, 0), App.Vector(0, 0, 1), 2), math.radians(-180), math.radians(-90)),  # 10
    Part.LineSegment(App.Vector(4, -19, 0), App.Vector(41.881291, -19, 0)),  # 11
    Part.ArcOfCircle(Part.Circle(App.Vector(41.881291, -17, 0), App.Vector(0, 0, 1), 2), math.radians(-90), math.radians(25.201124)),  # 12
    Part.LineSegment(App.Vector(43.690928, -16.148406, 0), App.Vector(43.690363, -16.147204, 0)),  # 13
    Part.ArcOfCircle(Part.Circle(App.Vector(45.5, -15.29561, 0), App.Vector(0, 0, 1), 2), math.radians(180), math.radians(205.201124)),  # 14
    Part.LineSegment(App.Vector(43.5, -15.29561, 0), App.Vector(43.5, -15, 0)),  # 15
], False)
sketch10.addConstraint([
    Sketcher.Constraint("Coincident", 0, 2, 1, 1),
    Sketcher.Constraint("Tangent", 1, 2, 2, 2),
    Sketcher.Constraint("Tangent", 2, 1, 3, 1),
    Sketcher.Constraint("Coincident", 3, 2, 4, 1),
    Sketcher.Constraint("Tangent", 4, 2, 5, 1),
    Sketcher.Constraint("Tangent", 5, 2, 6, 1),
    Sketcher.Constraint("Tangent", 6, 2, 7, 1),
    Sketcher.Constraint("Coincident", 7, 2, 0, 1),
    Sketcher.Constraint("Coincident", 8, 2, 9, 1),
    Sketcher.Constraint("Tangent", 9, 2, 10, 1),
    Sketcher.Constraint("Tangent", 10, 2, 11, 1),
    Sketcher.Constraint("Tangent", 11, 2, 12, 1),
    Sketcher.Constraint("Tangent", 12, 2, 13, 1),
    Sketcher.Constraint("Coincident", 13, 2, 14, 2),
    Sketcher.Constraint("Tangent", 14, 1, 15, 1),
    Sketcher.Constraint("Coincident", 15, 2, 8, 1),
    Sketcher.Constraint("Horizontal", 0),
    Sketcher.Constraint("Vertical", 1),
    Sketcher.Constraint("Horizontal", 5),
    Sketcher.Constraint("Vertical", 7),
    Sketcher.Constraint("Horizontal", 8),
    Sketcher.Constraint("Vertical", 9),
    Sketcher.Constraint("Horizontal", 11),
    Sketcher.Constraint("Vertical", 15),
    Sketcher.Constraint("Equal", 2, 4),
    Sketcher.Constraint("Equal", 4, 6),
    Sketcher.Constraint("Equal", 6, 10),
    Sketcher.Constraint("Equal", 10, 12),
    Sketcher.Constraint("Equal", 12, 14),
    Sketcher.Constraint("Symmetric", 6, 3, 10, 3, -2),
    Sketcher.Constraint("Symmetric", 2, 3, 14, 3, -2),
    Sketcher.Constraint("Horizontal", 7, 2, 8, 2),
    Sketcher.Constraint("Horizontal", 3, 2, 12, 2),
    Sketcher.Constraint("Horizontal", 2, 1, 13, 2),
    Sketcher.Constraint("Radius", 2, 2.0),
    Sketcher.Constraint("DistanceY", 7, 1, 7, 2, 2.0),
    Sketcher.Constraint("DistanceX", 0, 2, 0, 1, 41.5),
    Sketcher.Constraint("DistanceY", 4, 3, -1, 1, 17.0),
    Sketcher.Constraint("DistanceX", 6, 3, -1, 1, 4.0),
    Sketcher.Constraint("DistanceX", 5, 1, 5, 2, 37.881291),
    Sketcher.Constraint("DistanceY", 3, 2, 2, 1, 0.001202),
    Sketcher.Constraint("DistanceX", 3, 2, -1, 1, 43.690928),
])
sketch10.setExpression("Constraints[34]", "Params.sketch10_radius")
sketch10.setExpression("Constraints[35]", "Params.sketch10_height")
sketch10.setExpression("Constraints[36]", "Params.sketch10_width")
pad3 = body.newObject("PartDesign::Pad", "Pad002")
pad3.Profile = sketch10
pad3.setExpression("Length", "Params.pad3_length")
pad3.Reversed = True
doc.recompute()

fillet3 = body.newObject("PartDesign::Fillet", "Fillet002")
fillet3.Base = (pad3, edges_at(pad3, [
    (-2, -15, 0),
    (-43.5, -15, 0),
    (43.5, -15, 0),
    (2, -15, 0),
]))
fillet3.setExpression("Radius", "Params.fillet3_radius")
doc.recompute()

fillet4 = body.newObject("PartDesign::Fillet", "Fillet003")
fillet4.Base = (fillet3, edges_at(fillet3, [(12, -35, 0), (-30, -35, 0)]))
fillet4.setExpression("Radius", "Params.fillet4_radius")

doc.recompute()
